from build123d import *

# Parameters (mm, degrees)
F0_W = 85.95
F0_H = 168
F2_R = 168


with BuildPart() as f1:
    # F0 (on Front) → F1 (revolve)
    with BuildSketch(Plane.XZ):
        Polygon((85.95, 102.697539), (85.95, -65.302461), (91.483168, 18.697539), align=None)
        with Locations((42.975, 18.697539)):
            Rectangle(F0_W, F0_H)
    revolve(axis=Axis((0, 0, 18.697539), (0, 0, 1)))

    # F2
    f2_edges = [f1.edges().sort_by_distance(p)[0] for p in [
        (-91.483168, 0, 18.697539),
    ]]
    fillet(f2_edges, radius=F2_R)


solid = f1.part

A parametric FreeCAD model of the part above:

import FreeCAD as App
import Part
import Sketcher

V = App.Vector
Q = App.Units.Quantity


def edges_at(feature, points):
    """Names of the edges that pass closest to the given points."""
    edges = feature.Shape.Edges
    near = lambda p: min(range(len(edges)), key=lambda i: edges[i].distToShape(Part.Vertex(*p))[0])
    return sorted({f"Edge{near(p) + 1}" for p in points})

doc = App.newDocument("Part")
body = doc.addObject("PartDesign::Body", "Body")

# Sketch on XZ plane
sketch1 = doc.addObject("Sketcher::SketchObject", "Sketch")
body.addObject(sketch1)
sketch1.AttachmentSupport = (doc.XZ_Plane, [""])
sketch1.MapMode = "FlatFace"
sketch1.addGeometry(Part.LineSegment(V(86, -65, 0), V(91, 19, 0)), False)
sketch1.addGeometry(Part.LineSegment(V(91, 19, 0), V(86, 103, 0)), False)
sketch1.addGeometry(Part.LineSegment(V(86, 103, 0), V(0, 103, 0)), False)
sketch1.addGeometry(Part.LineSegment(V(0, 103, 0), V(0, -65, 0)), False)
sketch1.addGeometry(Part.LineSegment(V(0, -65, 0), V(86, -65, 0)), False)
sketch1.addConstraint(Sketcher.Constraint("Coincident", 0, 2, 1, 1))
sketch1.addConstraint(Sketcher.Constraint("Coincident", 1, 2, 2, 1))
sketch1.addConstraint(Sketcher.Constraint("Coincident", 2, 2, 3, 1))
sketch1.addConstraint(Sketcher.Constraint("Coincident", 3, 2, 4, 1))
sketch1.addConstraint(Sketcher.Constraint("Coincident", 4, 2, 0, 1))
sketch1.addConstraint(Sketcher.Constraint("Horizontal", 2))
sketch1.addConstraint(Sketcher.Constraint("Vertical", 3))
sketch1.addConstraint(Sketcher.Constraint("Horizontal", 4))
sketch1.addConstraint(Sketcher.Constraint("PointOnObject", 2, 2, -2))
sketch1.addConstraint(Sketcher.Constraint("Vertical", 1, 2, 4, 2))
sketch1.addConstraint(Sketcher.Constraint("Equal", 0, 1))
sketch1.addConstraint(Sketcher.Constraint("DistanceY", 3, 2, 3, 1, Q("168 mm")))
sketch1.addConstraint(Sketcher.Constraint("DistanceX", 2, 2, 2, 1, Q("85.95 mm")))
sketch1.addConstraint(Sketcher.Constraint("Distance", 0, Q("84.182041 mm")))
sketch1.addConstraint(Sketcher.Constraint("DistanceY", -1, 1, 0, 2, Q("18.697539 mm")))
revolution = doc.addObject("PartDesign::Revolution", "Revolution")
body.addObject(revolution)
revolution.Profile = sketch1
revolution.ReferenceAxis = (sketch1, ["V_Axis"])
revolution.Angle = 360
doc.recompute()

fillet = doc.addObject("PartDesign::Fillet", "Fillet")
body.addObject(fillet)
fillet.Base = (revolution, edges_at(revolution, [(-91.483, 0, 18.698)]))
fillet.Radius = 168

doc.recompute()
